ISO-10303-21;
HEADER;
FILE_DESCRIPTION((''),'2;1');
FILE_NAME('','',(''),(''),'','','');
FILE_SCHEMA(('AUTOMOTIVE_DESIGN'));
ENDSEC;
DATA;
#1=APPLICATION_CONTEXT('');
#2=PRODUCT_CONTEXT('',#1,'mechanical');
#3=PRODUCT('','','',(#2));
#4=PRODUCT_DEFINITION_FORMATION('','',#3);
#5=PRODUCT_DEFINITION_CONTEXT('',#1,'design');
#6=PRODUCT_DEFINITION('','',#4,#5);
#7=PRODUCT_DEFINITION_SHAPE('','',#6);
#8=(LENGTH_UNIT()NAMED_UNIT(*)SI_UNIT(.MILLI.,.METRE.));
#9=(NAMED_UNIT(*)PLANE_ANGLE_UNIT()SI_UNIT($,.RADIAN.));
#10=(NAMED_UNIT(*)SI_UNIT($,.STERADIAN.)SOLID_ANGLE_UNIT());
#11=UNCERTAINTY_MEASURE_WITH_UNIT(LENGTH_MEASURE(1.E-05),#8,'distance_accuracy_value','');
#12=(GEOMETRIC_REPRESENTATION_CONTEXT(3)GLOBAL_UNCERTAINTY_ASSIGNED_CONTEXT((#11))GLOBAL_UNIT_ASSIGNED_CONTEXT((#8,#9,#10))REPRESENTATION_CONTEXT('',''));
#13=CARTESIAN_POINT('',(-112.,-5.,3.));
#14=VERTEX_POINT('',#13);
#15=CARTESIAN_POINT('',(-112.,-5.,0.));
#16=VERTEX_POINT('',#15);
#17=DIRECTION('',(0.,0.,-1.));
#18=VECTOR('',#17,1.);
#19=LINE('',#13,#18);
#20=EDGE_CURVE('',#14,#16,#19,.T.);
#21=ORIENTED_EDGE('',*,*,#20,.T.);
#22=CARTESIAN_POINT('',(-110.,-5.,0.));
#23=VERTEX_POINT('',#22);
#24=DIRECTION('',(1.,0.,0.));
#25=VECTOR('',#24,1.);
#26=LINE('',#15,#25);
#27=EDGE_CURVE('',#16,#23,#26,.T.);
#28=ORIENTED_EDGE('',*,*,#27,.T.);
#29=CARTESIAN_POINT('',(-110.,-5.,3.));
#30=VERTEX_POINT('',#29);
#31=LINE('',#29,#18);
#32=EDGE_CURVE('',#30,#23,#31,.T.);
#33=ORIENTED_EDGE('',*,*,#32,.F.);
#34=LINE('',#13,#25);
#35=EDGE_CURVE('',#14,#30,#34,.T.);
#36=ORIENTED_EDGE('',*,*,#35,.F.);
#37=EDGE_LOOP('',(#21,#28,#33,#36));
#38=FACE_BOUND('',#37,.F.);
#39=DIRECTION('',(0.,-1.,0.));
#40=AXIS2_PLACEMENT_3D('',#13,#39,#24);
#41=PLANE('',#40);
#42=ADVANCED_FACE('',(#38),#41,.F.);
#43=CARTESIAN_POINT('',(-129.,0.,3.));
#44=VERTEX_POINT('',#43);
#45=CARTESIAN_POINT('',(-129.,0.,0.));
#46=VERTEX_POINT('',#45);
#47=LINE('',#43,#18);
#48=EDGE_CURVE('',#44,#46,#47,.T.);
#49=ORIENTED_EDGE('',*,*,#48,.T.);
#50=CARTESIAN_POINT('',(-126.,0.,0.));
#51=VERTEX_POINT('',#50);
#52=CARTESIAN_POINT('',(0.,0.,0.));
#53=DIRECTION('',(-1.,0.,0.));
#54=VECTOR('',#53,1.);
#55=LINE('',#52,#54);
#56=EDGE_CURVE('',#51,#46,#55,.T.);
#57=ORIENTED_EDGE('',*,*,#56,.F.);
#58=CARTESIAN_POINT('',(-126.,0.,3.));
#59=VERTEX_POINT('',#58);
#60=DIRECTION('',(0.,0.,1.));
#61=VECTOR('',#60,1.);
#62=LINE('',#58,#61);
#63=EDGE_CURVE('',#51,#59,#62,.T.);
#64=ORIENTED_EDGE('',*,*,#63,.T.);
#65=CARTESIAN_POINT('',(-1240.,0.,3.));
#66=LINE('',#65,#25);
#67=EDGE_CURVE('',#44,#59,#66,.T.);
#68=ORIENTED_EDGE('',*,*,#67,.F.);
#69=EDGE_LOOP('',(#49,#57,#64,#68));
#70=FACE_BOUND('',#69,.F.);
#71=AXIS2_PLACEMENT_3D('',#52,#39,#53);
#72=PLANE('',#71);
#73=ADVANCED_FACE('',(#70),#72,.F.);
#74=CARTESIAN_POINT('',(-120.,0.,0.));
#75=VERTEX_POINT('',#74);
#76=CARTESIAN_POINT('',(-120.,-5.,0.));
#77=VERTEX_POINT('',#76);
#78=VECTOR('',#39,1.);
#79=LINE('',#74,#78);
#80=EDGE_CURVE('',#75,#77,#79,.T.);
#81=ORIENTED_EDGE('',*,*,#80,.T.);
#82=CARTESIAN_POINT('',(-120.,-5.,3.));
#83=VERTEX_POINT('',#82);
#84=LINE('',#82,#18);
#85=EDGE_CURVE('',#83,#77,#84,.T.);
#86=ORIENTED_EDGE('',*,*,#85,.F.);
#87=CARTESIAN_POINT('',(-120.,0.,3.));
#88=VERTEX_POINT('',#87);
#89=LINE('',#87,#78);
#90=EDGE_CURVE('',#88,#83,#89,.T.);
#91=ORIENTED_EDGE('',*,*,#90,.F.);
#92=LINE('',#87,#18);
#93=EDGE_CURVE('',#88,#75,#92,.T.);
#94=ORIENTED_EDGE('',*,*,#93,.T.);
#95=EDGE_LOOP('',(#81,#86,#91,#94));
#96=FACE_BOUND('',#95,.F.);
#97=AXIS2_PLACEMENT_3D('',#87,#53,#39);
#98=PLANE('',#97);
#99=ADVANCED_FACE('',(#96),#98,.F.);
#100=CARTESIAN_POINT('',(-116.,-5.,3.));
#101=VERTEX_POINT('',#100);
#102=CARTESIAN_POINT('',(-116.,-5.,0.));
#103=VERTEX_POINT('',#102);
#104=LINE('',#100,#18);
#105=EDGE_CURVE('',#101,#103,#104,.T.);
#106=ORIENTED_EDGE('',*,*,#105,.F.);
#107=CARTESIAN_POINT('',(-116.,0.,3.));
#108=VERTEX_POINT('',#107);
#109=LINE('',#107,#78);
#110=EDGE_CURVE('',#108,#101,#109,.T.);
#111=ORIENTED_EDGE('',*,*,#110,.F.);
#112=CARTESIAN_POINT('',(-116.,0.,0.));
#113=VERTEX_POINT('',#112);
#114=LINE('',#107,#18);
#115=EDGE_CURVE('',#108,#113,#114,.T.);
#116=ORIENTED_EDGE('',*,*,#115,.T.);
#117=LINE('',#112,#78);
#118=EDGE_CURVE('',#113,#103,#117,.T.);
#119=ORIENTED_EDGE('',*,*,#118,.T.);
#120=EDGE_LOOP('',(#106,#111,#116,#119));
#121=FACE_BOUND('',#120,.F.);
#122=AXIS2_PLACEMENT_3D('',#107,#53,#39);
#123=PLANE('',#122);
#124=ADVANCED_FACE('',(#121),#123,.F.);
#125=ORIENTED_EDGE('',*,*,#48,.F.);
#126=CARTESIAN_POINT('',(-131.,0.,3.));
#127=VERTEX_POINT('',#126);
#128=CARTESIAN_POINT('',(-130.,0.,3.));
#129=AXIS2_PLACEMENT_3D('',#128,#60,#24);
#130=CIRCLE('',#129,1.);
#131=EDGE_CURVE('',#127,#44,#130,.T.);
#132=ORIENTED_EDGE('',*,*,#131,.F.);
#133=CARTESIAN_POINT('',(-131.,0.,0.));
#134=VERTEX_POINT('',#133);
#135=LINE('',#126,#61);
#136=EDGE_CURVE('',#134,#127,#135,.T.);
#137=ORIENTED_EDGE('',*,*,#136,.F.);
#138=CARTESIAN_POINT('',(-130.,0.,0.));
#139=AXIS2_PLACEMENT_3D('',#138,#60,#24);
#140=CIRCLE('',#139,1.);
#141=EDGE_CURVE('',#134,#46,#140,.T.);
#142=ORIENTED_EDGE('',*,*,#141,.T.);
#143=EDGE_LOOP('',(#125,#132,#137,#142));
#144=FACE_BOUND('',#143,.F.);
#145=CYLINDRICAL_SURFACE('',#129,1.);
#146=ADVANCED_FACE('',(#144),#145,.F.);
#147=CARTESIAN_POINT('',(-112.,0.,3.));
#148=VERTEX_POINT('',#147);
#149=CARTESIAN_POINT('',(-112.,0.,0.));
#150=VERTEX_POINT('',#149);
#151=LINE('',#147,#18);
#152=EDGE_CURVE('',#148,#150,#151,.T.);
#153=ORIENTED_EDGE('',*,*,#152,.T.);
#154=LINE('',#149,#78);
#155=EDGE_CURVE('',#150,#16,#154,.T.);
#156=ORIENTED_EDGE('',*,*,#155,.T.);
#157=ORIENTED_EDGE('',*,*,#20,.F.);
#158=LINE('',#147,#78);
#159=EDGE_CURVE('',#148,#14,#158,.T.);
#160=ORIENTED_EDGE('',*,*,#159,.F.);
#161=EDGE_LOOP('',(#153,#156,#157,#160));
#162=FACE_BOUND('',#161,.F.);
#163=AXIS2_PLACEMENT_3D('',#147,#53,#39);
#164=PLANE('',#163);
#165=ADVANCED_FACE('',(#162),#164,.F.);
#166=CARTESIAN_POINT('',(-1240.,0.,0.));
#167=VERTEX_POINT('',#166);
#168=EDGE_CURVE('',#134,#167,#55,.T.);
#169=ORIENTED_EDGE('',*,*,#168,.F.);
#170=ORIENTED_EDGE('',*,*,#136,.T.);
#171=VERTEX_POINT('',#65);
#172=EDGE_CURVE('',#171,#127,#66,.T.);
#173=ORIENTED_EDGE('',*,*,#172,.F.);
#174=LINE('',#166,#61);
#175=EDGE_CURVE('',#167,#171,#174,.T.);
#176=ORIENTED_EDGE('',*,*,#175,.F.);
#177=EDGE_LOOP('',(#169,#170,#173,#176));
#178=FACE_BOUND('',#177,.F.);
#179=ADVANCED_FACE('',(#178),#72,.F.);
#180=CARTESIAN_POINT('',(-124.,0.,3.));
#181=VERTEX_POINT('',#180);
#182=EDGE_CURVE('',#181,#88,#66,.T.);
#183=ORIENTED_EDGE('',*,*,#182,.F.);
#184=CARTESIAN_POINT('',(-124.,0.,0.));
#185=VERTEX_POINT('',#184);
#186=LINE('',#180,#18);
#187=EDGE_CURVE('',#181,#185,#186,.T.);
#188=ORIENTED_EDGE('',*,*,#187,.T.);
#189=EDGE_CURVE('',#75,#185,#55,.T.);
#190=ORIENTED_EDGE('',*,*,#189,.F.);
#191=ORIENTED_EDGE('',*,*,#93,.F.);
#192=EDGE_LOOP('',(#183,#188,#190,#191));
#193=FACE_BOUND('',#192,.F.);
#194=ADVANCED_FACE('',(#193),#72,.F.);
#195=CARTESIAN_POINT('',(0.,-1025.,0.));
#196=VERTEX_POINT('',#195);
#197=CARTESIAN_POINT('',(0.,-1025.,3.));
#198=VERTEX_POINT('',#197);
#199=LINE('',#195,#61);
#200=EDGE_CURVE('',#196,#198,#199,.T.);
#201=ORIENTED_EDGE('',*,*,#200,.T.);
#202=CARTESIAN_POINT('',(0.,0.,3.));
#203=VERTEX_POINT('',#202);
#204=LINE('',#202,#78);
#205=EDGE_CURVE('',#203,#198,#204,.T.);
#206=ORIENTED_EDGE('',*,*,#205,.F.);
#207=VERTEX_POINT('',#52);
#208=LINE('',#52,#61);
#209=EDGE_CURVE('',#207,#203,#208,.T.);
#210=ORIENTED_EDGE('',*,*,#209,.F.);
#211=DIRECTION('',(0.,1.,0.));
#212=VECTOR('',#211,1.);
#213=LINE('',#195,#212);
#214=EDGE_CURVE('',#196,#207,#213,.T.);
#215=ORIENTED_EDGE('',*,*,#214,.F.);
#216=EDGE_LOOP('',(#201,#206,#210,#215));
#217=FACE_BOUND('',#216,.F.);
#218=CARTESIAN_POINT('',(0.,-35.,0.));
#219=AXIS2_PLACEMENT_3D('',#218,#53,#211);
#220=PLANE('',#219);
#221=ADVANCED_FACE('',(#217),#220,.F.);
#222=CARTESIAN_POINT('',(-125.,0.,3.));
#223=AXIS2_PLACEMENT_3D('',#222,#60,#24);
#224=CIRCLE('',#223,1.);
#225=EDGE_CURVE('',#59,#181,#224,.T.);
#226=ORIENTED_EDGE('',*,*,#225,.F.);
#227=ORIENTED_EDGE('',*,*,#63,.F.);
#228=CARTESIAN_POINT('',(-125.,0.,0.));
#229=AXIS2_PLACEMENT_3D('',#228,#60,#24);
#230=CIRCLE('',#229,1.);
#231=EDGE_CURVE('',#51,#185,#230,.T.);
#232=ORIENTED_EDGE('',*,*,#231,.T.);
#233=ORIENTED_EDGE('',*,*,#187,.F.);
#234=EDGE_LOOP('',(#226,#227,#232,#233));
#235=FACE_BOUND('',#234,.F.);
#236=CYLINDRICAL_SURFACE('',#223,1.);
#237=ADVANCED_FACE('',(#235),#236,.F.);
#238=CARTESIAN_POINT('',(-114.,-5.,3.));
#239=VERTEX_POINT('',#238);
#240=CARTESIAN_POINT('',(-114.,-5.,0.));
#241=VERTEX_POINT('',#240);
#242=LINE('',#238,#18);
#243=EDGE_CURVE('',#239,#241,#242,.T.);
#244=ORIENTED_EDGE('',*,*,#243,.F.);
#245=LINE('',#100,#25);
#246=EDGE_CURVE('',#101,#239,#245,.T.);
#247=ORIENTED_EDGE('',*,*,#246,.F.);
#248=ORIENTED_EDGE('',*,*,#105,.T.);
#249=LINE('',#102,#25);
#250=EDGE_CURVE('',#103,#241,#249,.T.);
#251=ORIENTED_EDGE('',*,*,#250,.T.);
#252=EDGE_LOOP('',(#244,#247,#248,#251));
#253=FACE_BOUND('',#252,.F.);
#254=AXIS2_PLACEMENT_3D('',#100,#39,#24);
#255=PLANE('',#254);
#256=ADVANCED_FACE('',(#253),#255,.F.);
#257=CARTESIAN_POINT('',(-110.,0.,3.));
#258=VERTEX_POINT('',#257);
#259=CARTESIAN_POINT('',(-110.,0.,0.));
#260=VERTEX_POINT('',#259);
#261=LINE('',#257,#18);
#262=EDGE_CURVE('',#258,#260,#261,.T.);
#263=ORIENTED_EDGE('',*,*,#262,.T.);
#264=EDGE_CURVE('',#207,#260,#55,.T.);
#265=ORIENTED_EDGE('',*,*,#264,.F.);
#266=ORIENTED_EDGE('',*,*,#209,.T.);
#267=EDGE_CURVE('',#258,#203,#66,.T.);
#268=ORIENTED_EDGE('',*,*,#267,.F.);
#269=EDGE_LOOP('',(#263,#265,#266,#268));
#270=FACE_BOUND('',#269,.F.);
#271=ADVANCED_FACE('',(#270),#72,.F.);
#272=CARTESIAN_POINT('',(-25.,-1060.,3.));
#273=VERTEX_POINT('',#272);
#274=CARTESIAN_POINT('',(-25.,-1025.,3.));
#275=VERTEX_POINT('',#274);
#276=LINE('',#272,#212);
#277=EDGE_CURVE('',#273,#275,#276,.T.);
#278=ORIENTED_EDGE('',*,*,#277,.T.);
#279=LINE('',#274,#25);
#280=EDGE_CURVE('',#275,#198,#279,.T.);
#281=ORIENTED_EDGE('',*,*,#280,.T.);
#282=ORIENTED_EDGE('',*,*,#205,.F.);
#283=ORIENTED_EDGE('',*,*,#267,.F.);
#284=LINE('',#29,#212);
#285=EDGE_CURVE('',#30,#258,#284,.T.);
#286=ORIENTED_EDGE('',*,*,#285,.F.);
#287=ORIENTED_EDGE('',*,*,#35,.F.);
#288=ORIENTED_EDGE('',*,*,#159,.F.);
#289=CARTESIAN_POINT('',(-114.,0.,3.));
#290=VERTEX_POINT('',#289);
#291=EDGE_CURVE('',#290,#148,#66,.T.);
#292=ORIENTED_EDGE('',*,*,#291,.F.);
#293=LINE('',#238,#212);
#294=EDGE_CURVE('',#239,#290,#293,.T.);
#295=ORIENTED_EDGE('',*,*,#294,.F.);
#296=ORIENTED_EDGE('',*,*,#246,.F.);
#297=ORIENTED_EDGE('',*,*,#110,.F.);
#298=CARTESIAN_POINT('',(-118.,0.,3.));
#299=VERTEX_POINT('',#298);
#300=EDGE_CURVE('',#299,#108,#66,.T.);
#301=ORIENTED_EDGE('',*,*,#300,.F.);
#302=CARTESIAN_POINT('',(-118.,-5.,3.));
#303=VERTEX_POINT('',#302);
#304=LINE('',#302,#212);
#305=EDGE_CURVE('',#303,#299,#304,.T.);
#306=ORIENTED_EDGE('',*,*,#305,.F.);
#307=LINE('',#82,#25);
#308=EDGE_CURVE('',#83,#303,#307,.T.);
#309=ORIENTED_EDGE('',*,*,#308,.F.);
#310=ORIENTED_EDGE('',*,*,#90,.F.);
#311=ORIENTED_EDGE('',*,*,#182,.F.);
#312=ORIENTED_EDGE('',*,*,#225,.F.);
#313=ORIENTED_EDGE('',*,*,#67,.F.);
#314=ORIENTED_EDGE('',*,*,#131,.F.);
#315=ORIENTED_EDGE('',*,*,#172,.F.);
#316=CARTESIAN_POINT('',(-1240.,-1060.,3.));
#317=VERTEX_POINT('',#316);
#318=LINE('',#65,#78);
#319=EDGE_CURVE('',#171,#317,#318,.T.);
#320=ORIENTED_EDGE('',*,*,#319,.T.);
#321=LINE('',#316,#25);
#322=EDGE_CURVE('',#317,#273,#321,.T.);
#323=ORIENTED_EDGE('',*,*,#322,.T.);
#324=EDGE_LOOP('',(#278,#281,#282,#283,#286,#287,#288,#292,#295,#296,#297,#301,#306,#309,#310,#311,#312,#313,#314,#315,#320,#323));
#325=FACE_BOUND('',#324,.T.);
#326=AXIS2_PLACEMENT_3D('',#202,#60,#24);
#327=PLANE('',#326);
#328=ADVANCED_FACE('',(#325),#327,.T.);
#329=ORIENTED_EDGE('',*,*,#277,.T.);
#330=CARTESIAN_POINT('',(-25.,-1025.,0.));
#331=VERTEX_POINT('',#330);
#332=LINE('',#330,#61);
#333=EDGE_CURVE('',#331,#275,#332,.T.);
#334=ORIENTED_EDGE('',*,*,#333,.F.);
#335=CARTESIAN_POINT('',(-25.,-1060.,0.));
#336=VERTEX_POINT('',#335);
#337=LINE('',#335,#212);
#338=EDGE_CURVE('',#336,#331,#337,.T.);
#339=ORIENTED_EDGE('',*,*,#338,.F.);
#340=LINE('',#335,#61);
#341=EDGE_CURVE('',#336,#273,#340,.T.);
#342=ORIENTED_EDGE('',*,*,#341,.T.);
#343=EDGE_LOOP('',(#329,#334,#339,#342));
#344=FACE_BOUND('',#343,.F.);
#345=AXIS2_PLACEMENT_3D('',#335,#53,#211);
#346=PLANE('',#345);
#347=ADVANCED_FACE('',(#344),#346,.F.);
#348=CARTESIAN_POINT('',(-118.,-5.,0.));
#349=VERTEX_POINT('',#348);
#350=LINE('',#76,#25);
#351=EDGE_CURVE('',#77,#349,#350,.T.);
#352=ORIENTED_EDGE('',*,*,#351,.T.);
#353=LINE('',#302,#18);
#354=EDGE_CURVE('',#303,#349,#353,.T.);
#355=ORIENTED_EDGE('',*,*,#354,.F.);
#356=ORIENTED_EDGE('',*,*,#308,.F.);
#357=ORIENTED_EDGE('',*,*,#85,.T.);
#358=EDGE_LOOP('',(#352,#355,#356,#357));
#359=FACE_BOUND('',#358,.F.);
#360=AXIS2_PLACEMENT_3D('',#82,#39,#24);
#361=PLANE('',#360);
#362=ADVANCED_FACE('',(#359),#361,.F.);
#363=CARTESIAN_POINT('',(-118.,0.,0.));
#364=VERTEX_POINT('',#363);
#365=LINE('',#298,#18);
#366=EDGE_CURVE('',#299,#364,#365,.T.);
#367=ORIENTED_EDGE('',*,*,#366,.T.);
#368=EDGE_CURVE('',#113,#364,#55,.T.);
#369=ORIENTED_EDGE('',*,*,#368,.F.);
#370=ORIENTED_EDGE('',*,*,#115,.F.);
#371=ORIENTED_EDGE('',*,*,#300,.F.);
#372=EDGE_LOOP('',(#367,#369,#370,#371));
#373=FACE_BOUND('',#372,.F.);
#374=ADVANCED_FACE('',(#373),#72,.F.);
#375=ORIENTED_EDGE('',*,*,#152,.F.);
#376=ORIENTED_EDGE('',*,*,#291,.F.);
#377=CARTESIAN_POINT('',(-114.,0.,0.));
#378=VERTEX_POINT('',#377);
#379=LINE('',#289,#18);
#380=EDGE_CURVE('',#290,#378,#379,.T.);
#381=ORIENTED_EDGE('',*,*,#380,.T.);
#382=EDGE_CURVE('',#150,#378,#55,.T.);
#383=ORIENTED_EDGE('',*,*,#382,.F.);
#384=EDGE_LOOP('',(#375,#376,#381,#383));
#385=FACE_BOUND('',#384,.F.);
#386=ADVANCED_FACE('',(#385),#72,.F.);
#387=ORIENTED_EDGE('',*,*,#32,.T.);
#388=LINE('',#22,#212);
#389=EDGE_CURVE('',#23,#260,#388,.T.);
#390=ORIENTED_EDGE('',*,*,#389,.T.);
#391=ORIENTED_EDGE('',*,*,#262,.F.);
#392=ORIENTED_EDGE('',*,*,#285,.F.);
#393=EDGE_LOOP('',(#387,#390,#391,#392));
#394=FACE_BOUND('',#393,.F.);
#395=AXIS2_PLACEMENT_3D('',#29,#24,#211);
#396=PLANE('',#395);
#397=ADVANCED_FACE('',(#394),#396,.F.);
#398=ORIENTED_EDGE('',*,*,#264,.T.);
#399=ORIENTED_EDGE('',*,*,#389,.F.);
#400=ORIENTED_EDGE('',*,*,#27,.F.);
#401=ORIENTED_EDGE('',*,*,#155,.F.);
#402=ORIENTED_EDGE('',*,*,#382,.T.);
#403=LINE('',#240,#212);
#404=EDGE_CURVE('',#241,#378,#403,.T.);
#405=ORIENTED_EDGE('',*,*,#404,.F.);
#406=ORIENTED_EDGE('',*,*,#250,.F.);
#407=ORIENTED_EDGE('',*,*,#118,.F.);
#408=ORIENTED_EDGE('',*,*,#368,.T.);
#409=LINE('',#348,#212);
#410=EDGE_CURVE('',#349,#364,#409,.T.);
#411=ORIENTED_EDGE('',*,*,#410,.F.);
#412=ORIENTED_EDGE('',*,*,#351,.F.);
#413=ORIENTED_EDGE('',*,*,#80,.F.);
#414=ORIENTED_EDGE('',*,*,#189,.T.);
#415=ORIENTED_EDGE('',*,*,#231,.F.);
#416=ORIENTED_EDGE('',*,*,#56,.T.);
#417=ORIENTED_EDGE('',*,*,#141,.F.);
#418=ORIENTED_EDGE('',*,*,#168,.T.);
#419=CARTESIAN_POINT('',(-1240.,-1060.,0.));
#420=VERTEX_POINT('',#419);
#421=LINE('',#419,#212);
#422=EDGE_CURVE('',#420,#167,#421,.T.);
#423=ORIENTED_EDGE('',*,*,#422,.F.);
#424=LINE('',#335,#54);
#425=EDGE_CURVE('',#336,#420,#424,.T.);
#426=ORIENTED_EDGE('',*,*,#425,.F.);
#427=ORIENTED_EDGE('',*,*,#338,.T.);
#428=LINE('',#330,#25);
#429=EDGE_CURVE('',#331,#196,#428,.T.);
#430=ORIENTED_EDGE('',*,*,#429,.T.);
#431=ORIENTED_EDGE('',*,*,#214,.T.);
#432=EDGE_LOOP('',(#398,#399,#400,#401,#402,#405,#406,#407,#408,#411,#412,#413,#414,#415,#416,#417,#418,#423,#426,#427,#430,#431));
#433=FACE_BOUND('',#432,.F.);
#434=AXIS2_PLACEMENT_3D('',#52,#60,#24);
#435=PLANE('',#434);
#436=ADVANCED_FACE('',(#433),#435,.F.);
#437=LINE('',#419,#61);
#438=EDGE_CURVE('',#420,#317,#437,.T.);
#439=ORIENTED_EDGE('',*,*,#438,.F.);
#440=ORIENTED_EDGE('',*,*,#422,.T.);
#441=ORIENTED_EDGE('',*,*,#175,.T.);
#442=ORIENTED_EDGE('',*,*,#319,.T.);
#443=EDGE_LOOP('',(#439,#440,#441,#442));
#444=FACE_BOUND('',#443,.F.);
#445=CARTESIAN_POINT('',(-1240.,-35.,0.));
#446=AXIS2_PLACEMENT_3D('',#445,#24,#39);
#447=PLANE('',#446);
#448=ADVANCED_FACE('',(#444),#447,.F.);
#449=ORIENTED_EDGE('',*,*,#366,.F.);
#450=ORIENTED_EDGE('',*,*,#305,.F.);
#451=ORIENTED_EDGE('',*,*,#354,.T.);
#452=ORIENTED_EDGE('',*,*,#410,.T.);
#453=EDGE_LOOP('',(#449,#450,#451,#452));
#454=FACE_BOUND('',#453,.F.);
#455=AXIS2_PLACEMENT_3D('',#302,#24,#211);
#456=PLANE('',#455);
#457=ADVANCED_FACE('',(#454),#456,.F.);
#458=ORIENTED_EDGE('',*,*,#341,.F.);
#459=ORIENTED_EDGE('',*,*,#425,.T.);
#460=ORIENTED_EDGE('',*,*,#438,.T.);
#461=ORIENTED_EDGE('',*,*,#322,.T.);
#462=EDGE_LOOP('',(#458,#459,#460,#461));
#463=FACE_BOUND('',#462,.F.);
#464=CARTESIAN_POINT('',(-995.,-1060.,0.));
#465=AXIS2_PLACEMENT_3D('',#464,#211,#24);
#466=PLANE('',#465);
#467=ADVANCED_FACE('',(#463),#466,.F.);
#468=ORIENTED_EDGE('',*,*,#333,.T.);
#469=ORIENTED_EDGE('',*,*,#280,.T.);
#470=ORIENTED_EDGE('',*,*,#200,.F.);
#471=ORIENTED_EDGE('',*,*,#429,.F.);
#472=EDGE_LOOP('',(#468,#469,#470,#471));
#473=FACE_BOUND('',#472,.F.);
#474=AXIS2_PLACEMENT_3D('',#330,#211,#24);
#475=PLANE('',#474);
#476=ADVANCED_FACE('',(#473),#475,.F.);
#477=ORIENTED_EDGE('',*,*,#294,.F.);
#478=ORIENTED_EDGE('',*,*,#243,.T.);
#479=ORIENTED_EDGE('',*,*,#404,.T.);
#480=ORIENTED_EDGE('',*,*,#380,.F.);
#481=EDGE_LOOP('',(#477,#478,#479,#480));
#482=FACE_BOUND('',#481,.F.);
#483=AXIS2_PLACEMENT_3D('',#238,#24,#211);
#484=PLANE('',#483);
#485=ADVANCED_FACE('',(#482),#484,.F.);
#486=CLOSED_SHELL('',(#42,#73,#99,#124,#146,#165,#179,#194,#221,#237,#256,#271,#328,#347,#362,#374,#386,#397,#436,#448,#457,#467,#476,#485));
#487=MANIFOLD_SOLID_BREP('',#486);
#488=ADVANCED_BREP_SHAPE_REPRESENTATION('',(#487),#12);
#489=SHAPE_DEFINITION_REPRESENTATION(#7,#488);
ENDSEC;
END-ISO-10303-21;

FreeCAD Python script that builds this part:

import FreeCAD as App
import Part
import Sketcher

V = App.Vector


def add_polygon(sketch, points):
    """Adds a closed chain of lines whose ends are joined by coincident constraints."""
    first, n = sketch.GeometryCount, len(points)
    for a, b in zip(points, points[1:] + points[:1]):
        sketch.addGeometry(Part.LineSegment(App.Vector(*a, 0), App.Vector(*b, 0)), False)
    for i in range(n):
        sketch.addConstraint(Sketcher.Constraint("Coincident", first + i, 2, first + (i + 1) % n, 1))

doc = App.newDocument("Part")
body = doc.addObject("PartDesign::Body", "Body")

# Sketch on XY plane
sketch1 = body.newObject("Sketcher::SketchObject", "Sketch")
sketch1.AttachmentSupport = (doc.getObject("XY_Plane"), [""])
sketch1.MapMode = "FlatFace"
add_polygon(sketch1, [(0, 0), (-1240, 0), (-1240, -1060), (-25, -1060), (-25, -1025), (0, -1025)])  # lines 0-5
sketch1.addConstraint([
    Sketcher.Constraint("Horizontal", 0),
    Sketcher.Constraint("Vertical", 1),
    Sketcher.Constraint("Horizontal", 2),
    Sketcher.Constraint("Vertical", 3),
    Sketcher.Constraint("Horizontal", 4),
    Sketcher.Constraint("Vertical", 5),
    Sketcher.Constraint("Coincident", 5, 2, -1, 1),
    Sketcher.Constraint("DistanceX", 0, 2, 0, 1, 1240.0),
    Sketcher.Constraint("DistanceX", 4, 1, 4, 2, 25.0),
    Sketcher.Constraint("DistanceY", 1, 2, 1, 1, 1060.0),
    Sketcher.Constraint("DistanceY", 3, 1, 3, 2, 35.0),
])
pad1 = body.newObject("PartDesign::Pad", "Pad")
pad1.Profile = sketch1
pad1.Length = 3

# Sketch on XY plane
sketch2 = body.newObject("Sketcher::SketchObject", "Sketch001")
sketch2.AttachmentSupport = (doc.getObject("XY_Plane"), [""])
sketch2.MapMode = "FlatFace"
sketch2.AttachmentOffset = App.Placement(V(0, 0, 3), App.Rotation())
add_polygon(sketch2, [(-110, -5), (-110, 0), (-112, 0), (-112, -5)])  # lines 0-3
add_polygon(sketch2, [(-114, -5), (-114, 0), (-116, 0), (-116, -5)])  # lines 4-7
add_polygon(sketch2, [(-118, -5), (-118, 0), (-120, 0), (-120, -5)])  # lines 8-11
sketch2.addGeometry(Part.Circle(V(-125, 0, 0), V(0, 0, 1), 1), False)  # 12
sketch2.addGeometry(Part.Circle(V(-130, 0, 0), V(0, 0, 1), 1), False)  # 13
sketch2.addConstraint([
    Sketcher.Constraint("Vertical", 0),
    Sketcher.Constraint("Horizontal", 1),
    Sketcher.Constraint("Vertical", 2),
    Sketcher.Constraint("Horizontal", 3),
    Sketcher.Constraint("Vertical", 4),
    Sketcher.Constraint("Horizontal", 5),
    Sketcher.Constraint("Vertical", 6),
    Sketcher.Constraint("Horizontal", 7),
    Sketcher.Constraint("Vertical", 8),
    Sketcher.Constraint("Horizontal", 9),
    Sketcher.Constraint("Vertical", 10),
    Sketcher.Constraint("Horizontal", 11),
    Sketcher.Constraint("Equal", 12, 13),
    Sketcher.Constraint("PointOnObject", 12, 3, -1),
    Sketcher.Constraint("PointOnObject", 13, 3, -1),
    Sketcher.Constraint("PointOnObject", 0, 2, -1),
    Sketcher.Constraint("PointOnObject", 4, 2, -1),
    Sketcher.Constraint("PointOnObject", 8, 2, -1),
    Sketcher.Constraint("Horizontal", 3, 2, 6, 2),
    Sketcher.Constraint("Horizontal", 7, 2, 10, 2),
    Sketcher.Constraint("Equal", 3, 5),
    Sketcher.Constraint("Equal", 7, 9),
    Sketcher.Constraint("Diameter", 12, 2.0),
    Sketcher.Constraint("DistanceX", 1, 2, 1, 1, 2.0),
    Sketcher.Constraint("DistanceY", 0, 1, 0, 2, 5.0),
    Sketcher.Constraint("DistanceX", 13, 3, 12, 3, 5.0),
    Sketcher.Constraint("DistanceX", 4, 2, 1, 2, 2.0),
    Sketcher.Constraint("DistanceX", 8, 2, 5, 2, 2.0),
    Sketcher.Constraint("DistanceX", 12, 3, 9, 2, 5.0),
    Sketcher.Constraint("DistanceX", 12, 3, -1, 1, 125.0),
])
pocket1 = body.newObject("PartDesign::Pocket", "Pocket")
pocket1.Profile = sketch2
pocket1.Length = 3

doc.recompute()
